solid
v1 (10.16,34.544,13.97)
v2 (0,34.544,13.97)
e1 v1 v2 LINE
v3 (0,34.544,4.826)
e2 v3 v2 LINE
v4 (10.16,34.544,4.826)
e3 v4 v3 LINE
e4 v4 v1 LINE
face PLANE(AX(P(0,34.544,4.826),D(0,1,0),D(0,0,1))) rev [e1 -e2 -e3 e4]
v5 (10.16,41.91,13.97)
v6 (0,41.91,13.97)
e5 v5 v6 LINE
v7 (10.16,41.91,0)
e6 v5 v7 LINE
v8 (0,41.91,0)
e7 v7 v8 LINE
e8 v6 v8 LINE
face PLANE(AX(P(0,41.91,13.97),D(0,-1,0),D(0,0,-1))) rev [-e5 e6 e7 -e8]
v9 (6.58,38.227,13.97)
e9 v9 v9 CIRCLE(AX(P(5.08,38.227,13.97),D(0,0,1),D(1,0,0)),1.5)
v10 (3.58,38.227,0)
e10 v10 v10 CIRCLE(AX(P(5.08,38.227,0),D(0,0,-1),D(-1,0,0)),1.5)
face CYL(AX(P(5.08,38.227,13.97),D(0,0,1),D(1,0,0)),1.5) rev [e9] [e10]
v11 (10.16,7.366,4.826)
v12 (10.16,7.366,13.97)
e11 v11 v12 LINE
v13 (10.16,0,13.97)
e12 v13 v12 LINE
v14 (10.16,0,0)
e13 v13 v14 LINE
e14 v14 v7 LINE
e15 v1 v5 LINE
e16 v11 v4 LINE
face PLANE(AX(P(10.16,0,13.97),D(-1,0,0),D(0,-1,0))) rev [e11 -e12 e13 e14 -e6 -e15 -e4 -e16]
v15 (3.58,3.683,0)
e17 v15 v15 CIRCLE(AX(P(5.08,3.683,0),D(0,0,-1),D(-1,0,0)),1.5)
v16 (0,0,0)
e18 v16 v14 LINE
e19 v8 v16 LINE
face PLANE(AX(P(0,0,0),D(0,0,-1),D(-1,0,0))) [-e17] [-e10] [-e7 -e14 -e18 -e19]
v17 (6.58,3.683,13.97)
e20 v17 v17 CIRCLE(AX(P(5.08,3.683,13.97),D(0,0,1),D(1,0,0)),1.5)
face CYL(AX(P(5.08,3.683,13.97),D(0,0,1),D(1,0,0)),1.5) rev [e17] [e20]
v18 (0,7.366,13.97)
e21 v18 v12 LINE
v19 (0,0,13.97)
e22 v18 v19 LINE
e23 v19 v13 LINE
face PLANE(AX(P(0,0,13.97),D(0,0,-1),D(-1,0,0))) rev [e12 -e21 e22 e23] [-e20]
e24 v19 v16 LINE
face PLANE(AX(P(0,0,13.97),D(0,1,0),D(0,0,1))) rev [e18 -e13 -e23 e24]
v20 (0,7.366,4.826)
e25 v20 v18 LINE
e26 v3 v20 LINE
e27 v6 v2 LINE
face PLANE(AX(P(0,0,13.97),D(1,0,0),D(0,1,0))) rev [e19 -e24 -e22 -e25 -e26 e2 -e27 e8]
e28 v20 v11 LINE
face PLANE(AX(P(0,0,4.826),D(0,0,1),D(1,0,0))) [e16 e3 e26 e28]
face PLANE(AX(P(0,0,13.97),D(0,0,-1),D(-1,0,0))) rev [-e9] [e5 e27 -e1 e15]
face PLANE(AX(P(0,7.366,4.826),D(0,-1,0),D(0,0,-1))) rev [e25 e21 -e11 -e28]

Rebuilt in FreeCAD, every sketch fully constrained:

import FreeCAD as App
import Part
import Sketcher
Q = App.Units.Quantity


def add_polygon(sketch, points):
    """Adds a closed chain of lines whose ends are joined by coincident constraints."""
    first, n = sketch.GeometryCount, len(points)
    for a, b in zip(points, points[1:] + points[:1]):
        sketch.addGeometry(Part.LineSegment(App.Vector(*a, 0), App.Vector(*b, 0)), False)
    for i in range(n):
        sketch.addConstraint(Sketcher.Constraint("Coincident", first + i, 2, first + (i + 1) % n, 1))

doc = App.newDocument("Part")
body = doc.addObject("PartDesign::Body", "Body")

# Sketch on XY plane
sketch1 = body.newObject("Sketcher::SketchObject", "Sketch")
sketch1.AttachmentSupport = (doc.getObject("XY_Plane"), [""])
sketch1.MapMode = "FlatFace"
add_polygon(sketch1, [(0, 42), (0, 0), (10, 0), (10, 42)])  # lines 0-3
sketch1.addConstraint([
    Sketcher.Constraint("Vertical", 0),
    Sketcher.Constraint("Horizontal", 1),
    Sketcher.Constraint("Vertical", 2),
    Sketcher.Constraint("Horizontal", 3),
    Sketcher.Constraint("Coincident", 0, 2, -1, 1),
    Sketcher.Constraint("DistanceX", 1, 1, 1, 2, Q("0.4 in")),
    Sketcher.Constraint("DistanceY", 0, 2, 0, 1, Q("1.65 in")),
])
pad1 = body.newObject("PartDesign::Pad", "Pad")
pad1.Profile = sketch1
pad1.Length = Q("0.55 in")

# Sketch on XY plane
sketch2 = body.newObject("Sketcher::SketchObject", "Sketch001")
sketch2.AttachmentSupport = (doc.getObject("XY_Plane"), [""])
sketch2.MapMode = "FlatFace"
sketch2.AttachmentOffset = App.Placement(App.Vector(0, 0, 0.55 * 25.4), App.Rotation())
add_polygon(sketch2, [(0, 35), (0, 7), (10, 7), (10, 35)])  # lines 0-3
sketch2.addConstraint([
    Sketcher.Constraint("Vertical", 0),
    Sketcher.Constraint("Horizontal", 1),
    Sketcher.Constraint("Vertical", 2),
    Sketcher.Constraint("Horizontal", 3),
    Sketcher.Constraint("PointOnObject", 0, 2, -2),
    Sketcher.Constraint("DistanceX", 1, 1, 1, 2, Q("0.4 in")),
    Sketcher.Constraint("DistanceY", 0, 2, 0, 1, Q("1.07 in")),
    Sketcher.Constraint("DistanceY", -1, 1, 0, 2, Q("0.29 in")),
])
pocket1 = body.newObject("PartDesign::Pocket", "Pocket")
pocket1.Profile = sketch2
pocket1.Length = Q("0.36 in")

# Sketch on XY plane
sketch3 = body.newObject("Sketcher::SketchObject", "Sketch002")
sketch3.AttachmentSupport = (doc.getObject("XY_Plane"), [""])
sketch3.MapMode = "FlatFace"
sketch3.AttachmentOffset = App.Placement(App.Vector(0, 0, 0.55 * 25.4), App.Rotation())
sketch3.addGeometry([
    Part.Circle(App.Vector(5.1, 3.7, 0), App.Vector(0, 0, 1), 1.5),
    Part.Circle(App.Vector(5.1, 38.2, 0), App.Vector(0, 0, 1), 1.5),
], False)
sketch3.addConstraint([
    Sketcher.Constraint("Equal", 0, 1),
    Sketcher.Constraint("Vertical", 0, 3, 1, 3),
    Sketcher.Constraint("DistanceX", -1, 1, 0, 3, Q("0.2 in")),
    Sketcher.Constraint("Diameter", 0, 3.0),
    Sketcher.Constraint("DistanceY", 0, 3, 1, 3, Q("1.36 in")),
    Sketcher.Constraint("DistanceY", -1, 1, 0, 3, Q("0.145 in")),
])
doc.recompute()
hole = body.newObject("PartDesign::Hole", "Hole")
hole.Profile = sketch3
hole.ThreadType = "None"
hole.Diameter = 3
hole.DepthType = "ThroughAll"

doc.recompute()
